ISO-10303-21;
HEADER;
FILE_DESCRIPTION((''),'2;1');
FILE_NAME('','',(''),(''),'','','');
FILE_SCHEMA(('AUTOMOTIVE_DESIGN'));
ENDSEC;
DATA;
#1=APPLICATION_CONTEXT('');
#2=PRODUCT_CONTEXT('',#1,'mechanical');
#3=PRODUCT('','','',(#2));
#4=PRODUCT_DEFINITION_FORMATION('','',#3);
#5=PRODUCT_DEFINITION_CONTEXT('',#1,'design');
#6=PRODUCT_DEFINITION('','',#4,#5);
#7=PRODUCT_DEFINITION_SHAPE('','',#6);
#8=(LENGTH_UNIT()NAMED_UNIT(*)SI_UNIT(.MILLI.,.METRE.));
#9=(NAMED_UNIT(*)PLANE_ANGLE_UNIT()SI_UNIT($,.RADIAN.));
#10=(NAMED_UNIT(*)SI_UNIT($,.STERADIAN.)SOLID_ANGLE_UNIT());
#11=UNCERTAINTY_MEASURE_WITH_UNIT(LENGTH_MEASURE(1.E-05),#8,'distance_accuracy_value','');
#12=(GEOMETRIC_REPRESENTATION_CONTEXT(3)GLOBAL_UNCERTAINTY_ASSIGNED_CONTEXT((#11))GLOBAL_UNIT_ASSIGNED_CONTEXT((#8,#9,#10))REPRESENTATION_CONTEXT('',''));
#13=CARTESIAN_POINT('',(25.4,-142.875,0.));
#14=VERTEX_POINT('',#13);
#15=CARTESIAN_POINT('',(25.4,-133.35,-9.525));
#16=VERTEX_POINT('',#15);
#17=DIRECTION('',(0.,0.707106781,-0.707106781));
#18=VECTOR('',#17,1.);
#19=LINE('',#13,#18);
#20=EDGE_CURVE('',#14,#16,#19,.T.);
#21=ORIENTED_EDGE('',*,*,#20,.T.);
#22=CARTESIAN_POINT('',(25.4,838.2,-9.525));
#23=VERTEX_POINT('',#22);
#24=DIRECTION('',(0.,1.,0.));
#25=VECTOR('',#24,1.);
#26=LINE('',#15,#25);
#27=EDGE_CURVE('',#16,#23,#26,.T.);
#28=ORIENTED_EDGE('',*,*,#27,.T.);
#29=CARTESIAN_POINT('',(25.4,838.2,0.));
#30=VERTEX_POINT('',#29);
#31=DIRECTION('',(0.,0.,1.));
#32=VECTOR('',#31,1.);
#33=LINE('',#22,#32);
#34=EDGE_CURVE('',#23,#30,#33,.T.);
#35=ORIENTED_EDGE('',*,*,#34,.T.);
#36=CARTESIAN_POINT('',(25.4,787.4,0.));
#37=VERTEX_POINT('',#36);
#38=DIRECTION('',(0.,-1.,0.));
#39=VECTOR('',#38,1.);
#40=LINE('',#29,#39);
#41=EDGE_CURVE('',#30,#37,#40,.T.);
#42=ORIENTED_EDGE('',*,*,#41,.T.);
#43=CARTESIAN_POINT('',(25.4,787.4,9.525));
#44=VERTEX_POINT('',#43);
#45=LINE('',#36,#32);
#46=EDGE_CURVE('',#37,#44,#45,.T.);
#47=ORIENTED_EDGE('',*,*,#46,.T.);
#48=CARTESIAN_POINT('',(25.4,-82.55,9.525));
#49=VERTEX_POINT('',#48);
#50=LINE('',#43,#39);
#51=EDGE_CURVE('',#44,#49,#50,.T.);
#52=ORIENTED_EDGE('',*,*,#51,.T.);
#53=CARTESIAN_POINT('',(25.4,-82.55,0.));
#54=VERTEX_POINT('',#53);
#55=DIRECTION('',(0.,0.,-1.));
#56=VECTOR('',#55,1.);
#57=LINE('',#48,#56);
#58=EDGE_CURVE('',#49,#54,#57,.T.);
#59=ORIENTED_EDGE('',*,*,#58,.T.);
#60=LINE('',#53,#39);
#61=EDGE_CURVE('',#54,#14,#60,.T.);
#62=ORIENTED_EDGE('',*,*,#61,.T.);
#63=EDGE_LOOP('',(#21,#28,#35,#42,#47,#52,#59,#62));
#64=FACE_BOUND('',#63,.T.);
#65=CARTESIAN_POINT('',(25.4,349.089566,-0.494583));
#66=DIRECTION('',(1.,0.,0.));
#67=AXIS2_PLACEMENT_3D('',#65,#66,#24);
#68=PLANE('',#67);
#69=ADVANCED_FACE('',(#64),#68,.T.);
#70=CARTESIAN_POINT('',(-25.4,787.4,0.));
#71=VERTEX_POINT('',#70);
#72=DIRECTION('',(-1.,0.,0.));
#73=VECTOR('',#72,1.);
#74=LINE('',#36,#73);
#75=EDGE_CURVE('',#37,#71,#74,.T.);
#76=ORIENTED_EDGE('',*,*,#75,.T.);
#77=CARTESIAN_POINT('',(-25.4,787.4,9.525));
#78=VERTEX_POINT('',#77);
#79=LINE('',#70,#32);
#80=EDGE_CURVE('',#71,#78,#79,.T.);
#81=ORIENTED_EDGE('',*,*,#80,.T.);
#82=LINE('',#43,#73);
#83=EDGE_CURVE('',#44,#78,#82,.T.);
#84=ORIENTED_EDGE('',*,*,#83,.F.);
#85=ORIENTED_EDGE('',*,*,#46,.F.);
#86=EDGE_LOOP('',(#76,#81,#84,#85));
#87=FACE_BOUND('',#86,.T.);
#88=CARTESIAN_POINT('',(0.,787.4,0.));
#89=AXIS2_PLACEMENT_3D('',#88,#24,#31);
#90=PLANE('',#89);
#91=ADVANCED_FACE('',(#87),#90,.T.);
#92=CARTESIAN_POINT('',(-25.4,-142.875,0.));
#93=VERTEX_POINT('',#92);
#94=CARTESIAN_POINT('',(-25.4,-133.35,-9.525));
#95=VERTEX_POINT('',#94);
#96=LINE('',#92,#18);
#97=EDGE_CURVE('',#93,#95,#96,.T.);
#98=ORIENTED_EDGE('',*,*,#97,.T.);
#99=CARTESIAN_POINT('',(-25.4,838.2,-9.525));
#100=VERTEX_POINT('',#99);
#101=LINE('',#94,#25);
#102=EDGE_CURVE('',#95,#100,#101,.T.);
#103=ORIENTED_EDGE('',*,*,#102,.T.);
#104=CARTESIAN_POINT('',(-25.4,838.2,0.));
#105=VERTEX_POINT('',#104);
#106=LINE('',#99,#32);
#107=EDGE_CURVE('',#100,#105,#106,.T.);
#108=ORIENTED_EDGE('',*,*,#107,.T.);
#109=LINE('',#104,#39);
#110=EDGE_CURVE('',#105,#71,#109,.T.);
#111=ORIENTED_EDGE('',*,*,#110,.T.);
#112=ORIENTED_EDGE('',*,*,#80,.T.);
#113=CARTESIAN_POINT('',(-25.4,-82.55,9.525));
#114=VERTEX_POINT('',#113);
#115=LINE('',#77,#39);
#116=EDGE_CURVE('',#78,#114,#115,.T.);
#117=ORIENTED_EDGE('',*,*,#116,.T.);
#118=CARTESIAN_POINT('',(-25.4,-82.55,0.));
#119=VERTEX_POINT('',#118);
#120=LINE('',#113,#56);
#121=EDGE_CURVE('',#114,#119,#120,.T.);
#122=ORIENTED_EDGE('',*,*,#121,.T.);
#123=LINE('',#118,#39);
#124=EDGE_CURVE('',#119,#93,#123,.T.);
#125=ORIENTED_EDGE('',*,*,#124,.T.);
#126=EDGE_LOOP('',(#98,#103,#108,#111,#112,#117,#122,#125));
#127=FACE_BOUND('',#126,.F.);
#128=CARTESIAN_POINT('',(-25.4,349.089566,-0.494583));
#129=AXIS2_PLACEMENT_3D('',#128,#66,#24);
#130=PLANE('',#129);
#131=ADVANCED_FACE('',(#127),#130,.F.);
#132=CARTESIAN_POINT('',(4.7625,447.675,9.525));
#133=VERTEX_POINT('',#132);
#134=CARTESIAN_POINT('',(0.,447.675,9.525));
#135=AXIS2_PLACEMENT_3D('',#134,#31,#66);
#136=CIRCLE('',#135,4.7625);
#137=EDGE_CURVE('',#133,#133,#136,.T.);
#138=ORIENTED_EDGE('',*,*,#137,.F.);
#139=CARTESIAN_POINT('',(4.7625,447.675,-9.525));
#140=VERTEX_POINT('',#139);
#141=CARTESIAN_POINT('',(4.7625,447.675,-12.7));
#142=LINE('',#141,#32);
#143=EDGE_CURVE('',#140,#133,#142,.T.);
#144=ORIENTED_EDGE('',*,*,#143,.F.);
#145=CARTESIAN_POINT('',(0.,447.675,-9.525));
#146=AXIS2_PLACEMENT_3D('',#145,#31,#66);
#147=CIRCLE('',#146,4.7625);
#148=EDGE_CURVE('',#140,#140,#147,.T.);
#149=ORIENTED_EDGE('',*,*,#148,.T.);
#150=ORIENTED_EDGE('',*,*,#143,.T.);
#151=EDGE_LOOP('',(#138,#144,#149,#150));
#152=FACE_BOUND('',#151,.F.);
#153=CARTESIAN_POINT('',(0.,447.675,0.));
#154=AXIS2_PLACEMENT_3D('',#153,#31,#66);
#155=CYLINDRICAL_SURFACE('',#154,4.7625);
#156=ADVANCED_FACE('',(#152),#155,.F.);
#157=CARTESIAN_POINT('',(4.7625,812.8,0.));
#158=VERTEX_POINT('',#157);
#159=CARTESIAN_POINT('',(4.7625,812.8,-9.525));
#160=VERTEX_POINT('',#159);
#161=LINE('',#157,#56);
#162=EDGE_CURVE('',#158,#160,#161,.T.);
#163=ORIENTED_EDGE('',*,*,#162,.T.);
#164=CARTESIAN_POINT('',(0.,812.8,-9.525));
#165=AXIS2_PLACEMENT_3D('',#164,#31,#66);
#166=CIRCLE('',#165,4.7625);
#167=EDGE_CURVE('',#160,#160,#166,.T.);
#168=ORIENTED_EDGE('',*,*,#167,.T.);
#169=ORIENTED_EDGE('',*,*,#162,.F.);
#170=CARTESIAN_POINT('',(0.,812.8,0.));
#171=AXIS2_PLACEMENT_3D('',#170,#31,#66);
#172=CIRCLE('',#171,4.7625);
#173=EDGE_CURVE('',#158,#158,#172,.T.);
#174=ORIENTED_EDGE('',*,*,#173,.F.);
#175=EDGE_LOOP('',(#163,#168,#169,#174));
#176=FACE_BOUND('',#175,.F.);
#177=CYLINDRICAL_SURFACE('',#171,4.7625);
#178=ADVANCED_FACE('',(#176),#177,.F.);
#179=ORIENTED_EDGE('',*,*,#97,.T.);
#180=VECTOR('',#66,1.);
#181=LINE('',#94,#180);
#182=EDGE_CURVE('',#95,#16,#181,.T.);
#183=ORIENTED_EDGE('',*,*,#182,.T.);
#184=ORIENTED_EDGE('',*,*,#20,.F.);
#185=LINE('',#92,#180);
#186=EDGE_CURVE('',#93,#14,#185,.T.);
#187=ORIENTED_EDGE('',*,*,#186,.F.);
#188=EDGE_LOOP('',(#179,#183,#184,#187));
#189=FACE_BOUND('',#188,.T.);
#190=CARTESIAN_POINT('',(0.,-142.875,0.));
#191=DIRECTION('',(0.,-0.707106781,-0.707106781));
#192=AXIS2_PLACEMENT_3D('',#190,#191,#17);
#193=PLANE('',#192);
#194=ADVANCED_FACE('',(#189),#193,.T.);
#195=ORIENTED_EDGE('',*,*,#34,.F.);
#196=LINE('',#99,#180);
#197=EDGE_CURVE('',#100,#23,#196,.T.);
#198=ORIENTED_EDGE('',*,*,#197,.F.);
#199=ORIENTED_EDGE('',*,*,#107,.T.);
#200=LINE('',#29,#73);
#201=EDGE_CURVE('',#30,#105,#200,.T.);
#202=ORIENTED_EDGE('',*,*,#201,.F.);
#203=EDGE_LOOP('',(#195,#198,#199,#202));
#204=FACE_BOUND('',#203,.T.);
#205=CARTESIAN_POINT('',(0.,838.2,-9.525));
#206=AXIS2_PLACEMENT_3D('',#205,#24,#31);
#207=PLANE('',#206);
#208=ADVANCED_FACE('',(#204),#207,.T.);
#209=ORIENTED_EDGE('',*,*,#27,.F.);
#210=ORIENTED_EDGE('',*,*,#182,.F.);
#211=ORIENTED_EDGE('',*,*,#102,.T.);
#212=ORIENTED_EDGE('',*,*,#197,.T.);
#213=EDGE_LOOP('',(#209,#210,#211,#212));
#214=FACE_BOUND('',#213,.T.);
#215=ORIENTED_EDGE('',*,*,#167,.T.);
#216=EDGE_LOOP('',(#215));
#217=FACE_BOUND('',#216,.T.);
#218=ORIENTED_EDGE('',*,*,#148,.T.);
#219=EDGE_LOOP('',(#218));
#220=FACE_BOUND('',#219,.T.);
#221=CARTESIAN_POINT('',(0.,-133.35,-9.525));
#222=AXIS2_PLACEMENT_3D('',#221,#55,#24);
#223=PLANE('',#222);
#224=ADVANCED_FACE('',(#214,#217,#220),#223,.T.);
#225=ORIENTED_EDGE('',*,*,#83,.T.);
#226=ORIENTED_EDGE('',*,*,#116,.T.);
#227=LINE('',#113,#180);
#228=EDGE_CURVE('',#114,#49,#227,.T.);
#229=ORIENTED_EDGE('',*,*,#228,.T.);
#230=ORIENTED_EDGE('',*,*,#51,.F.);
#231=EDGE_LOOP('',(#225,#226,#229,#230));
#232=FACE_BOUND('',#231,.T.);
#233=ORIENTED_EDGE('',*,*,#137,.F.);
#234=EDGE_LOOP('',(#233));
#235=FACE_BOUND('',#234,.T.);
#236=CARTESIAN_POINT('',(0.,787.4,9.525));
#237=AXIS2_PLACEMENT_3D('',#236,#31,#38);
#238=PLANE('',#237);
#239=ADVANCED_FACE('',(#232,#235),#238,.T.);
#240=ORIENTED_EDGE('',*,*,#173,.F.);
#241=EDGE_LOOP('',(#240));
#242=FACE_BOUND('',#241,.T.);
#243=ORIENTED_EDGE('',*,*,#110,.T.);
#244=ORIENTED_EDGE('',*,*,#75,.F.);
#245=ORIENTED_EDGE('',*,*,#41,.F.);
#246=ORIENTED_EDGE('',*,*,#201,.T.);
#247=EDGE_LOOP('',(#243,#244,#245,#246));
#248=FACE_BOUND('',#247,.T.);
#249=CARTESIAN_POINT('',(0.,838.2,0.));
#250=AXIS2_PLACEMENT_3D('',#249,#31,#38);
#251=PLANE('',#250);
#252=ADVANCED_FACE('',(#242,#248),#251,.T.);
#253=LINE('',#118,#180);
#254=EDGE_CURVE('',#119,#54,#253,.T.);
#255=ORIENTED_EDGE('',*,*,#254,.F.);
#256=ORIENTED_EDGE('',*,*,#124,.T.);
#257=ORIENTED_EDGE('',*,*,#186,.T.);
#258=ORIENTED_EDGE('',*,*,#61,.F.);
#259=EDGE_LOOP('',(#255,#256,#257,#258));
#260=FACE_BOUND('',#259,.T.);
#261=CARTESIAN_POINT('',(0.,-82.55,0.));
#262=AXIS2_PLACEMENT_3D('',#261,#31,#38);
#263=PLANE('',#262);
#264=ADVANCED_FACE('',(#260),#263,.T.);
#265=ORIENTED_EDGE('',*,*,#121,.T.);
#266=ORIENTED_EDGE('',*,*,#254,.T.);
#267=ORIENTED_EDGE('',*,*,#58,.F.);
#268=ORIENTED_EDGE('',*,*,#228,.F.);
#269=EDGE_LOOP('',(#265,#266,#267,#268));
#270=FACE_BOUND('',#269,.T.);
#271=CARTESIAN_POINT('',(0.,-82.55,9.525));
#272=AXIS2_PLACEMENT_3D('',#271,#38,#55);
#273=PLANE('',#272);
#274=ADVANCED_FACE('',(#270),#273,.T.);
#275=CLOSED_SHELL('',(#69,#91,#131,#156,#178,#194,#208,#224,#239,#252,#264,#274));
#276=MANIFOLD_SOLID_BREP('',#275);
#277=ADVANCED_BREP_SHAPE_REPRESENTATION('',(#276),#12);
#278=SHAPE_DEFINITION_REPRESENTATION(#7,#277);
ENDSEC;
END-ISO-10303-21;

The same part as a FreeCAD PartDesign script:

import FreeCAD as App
import Part
import Sketcher
Q = App.Units.Quantity

doc = App.newDocument("Part")
params = doc.addObject("Spreadsheet::Sheet", "Params")
for row, (alias, value) in enumerate([
    ("sketch1_width", "2 in"),
    ("sketch1_width2", "34.25 in"),
    ("sketch1_width3", "2.375 in"),
    ("pad1_length", "2 in"),
    ("sketch2_diameter", "0.375 in"),
    ("pocket1_length", "1 in"),
], start=1):
    params.set(f"A{row}", alias)
    params.set(f"B{row}", "=" + value)
    params.setAlias(f"B{row}", alias)

body = doc.addObject("PartDesign::Body", "Body")

# Sketch on YZ plane
sketch1 = body.newObject("Sketcher::SketchObject", "Sketch")
sketch1.AttachmentSupport = (doc.getObject("YZ_Plane"), [""])
sketch1.MapMode = "FlatFace"
sketch1.addGeometry(Part.LineSegment(App.Vector(787, 10, 0), App.Vector(-83, 10, 0)), False)
sketch1.addGeometry(Part.LineSegment(App.Vector(-83, 10, 0), App.Vector(-83, 0, 0)), False)
sketch1.addGeometry(Part.LineSegment(App.Vector(-83, 0, 0), App.Vector(-143, 0, 0)), False)
sketch1.addGeometry(Part.LineSegment(App.Vector(-143, 0, 0), App.Vector(-133, -10, 0)), False)
sketch1.addGeometry(Part.LineSegment(App.Vector(-133, -10, 0), App.Vector(838, -10, 0)), False)
sketch1.addGeometry(Part.LineSegment(App.Vector(838, -10, 0), App.Vector(838, 0, 0)), False)
sketch1.addGeometry(Part.LineSegment(App.Vector(838, 0, 0), App.Vector(787, 0, 0)), False)
sketch1.addGeometry(Part.LineSegment(App.Vector(787, 0, 0), App.Vector(787, 10, 0)), False)
sketch1.addConstraint(Sketcher.Constraint("Coincident", 0, 2, 1, 1))
sketch1.addConstraint(Sketcher.Constraint("Coincident", 1, 2, 2, 1))
sketch1.addConstraint(Sketcher.Constraint("Coincident", 2, 2, 3, 1))
sketch1.addConstraint(Sketcher.Constraint("Coincident", 3, 2, 4, 1))
sketch1.addConstraint(Sketcher.Constraint("Coincident", 4, 2, 5, 1))
sketch1.addConstraint(Sketcher.Constraint("Coincident", 5, 2, 6, 1))
sketch1.addConstraint(Sketcher.Constraint("Coincident", 6, 2, 7, 1))
sketch1.addConstraint(Sketcher.Constraint("Coincident", 7, 2, 0, 1))
sketch1.addConstraint(Sketcher.Constraint("Horizontal", 0))
sketch1.addConstraint(Sketcher.Constraint("Vertical", 1))
sketch1.addConstraint(Sketcher.Constraint("Horizontal", 2))
sketch1.addConstraint(Sketcher.Constraint("Horizontal", 4))
sketch1.addConstraint(Sketcher.Constraint("Vertical", 5))
sketch1.addConstraint(Sketcher.Constraint("Horizontal", 6))
sketch1.addConstraint(Sketcher.Constraint("Vertical", 7))
sketch1.addConstraint(Sketcher.Constraint("PointOnObject", 1, 2, -1))
sketch1.addConstraint(Sketcher.Constraint("PointOnObject", 5, 2, -1))
sketch1.addConstraint(Sketcher.Constraint("Equal", 1, 5))
sketch1.addConstraint(Sketcher.Constraint("DistanceX", 6, 2, 6, 1, Q("2 in")))
sketch1.addConstraint(Sketcher.Constraint("DistanceX", -1, 1, 4, 2, Q("33 in")))
sketch1.addConstraint(Sketcher.Constraint("Angle", 3, Q("-45 deg")))
sketch1.addConstraint(Sketcher.Constraint("DistanceX", 3, 2, 1, 2, Q("2 in")))
sketch1.addConstraint(Sketcher.Constraint("DistanceX", 0, 2, 0, 1, Q("34.25 in")))
sketch1.addConstraint(Sketcher.Constraint("DistanceX", 2, 2, 2, 1, Q("2.375 in")))
sketch1.setExpression("Constraints[18]", "Params.sketch1_width")
sketch1.setExpression("Constraints[22]", "Params.sketch1_width2")
sketch1.setExpression("Constraints[23]", "Params.sketch1_width3")
pad1 = body.newObject("PartDesign::Pad", "Pad")
pad1.Profile = sketch1
pad1.setExpression("Length", "Params.pad1_length")
pad1.Midplane = True

# Sketch on XY plane
sketch2 = body.newObject("Sketcher::SketchObject", "Sketch001")
sketch2.AttachmentSupport = (doc.getObject("XY_Plane"), [""])
sketch2.MapMode = "FlatFace"
sketch2.addGeometry(Part.Circle(App.Vector(0, 812.8, 0), App.Vector(0, 0, 1), 4.8), False)
sketch2.addGeometry(Part.Circle(App.Vector(0, 447.7, 0), App.Vector(0, 0, 1), 4.8), False)
sketch2.addConstraint(Sketcher.Constraint("Equal", 0, 1))
sketch2.addConstraint(Sketcher.Constraint("PointOnObject", 0, 3, -2))
sketch2.addConstraint(Sketcher.Constraint("PointOnObject", 1, 3, -2))
sketch2.addConstraint(Sketcher.Constraint("Diameter", 0, Q("0.375 in")))
sketch2.addConstraint(Sketcher.Constraint("DistanceY", -1, 1, 0, 3, Q("32 in")))
sketch2.addConstraint(Sketcher.Constraint("DistanceY", -1, 1, 1, 3, Q("17.625 in")))
sketch2.setExpression("Constraints[3]", "Params.sketch2_diameter")
pocket1 = body.newObject("PartDesign::Pocket", "Pocket")
pocket1.Profile = sketch2
pocket1.setExpression("Length", "Params.pocket1_length")
pocket1.Midplane = True

doc.recompute()
